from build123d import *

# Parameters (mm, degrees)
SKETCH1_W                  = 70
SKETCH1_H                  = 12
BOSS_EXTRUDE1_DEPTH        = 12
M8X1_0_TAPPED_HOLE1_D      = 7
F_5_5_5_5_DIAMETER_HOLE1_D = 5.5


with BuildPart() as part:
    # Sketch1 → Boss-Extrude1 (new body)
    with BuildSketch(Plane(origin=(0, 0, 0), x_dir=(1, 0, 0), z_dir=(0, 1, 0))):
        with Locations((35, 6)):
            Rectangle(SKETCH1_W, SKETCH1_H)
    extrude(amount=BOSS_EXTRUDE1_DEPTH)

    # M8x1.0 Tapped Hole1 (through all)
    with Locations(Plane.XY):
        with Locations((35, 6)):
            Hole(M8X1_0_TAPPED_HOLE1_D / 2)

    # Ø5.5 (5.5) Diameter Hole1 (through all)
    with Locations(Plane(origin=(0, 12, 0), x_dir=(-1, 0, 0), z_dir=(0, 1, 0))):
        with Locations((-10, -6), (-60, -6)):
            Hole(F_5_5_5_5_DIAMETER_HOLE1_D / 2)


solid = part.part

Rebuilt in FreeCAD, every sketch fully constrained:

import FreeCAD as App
import Part
import Sketcher


def add_polygon(sketch, points):
    """Adds a closed chain of lines whose ends are joined by coincident constraints."""
    first, n = sketch.GeometryCount, len(points)
    for a, b in zip(points, points[1:] + points[:1]):
        sketch.addGeometry(Part.LineSegment(App.Vector(*a, 0), App.Vector(*b, 0)), False)
    for i in range(n):
        sketch.addConstraint(Sketcher.Constraint("Coincident", first + i, 2, first + (i + 1) % n, 1))

doc = App.newDocument("Part")
body = doc.addObject("PartDesign::Body", "Body")

sketch1 = body.newObject("Sketcher::SketchObject", "Sketch")
sketch1.AttachmentSupport = (doc.getObject("XZ_Plane"), [""])
sketch1.MapMode = "FlatFace"
add_polygon(sketch1, [(0, -12), (0, 0), (70, 0), (70, -12)])
sketch1.addConstraint([
    Sketcher.Constraint("Vertical", 0),
    Sketcher.Constraint("Horizontal", 1),
    Sketcher.Constraint("Vertical", 2),
    Sketcher.Constraint("Horizontal", 3),
    Sketcher.Constraint("Coincident", 0, 2, -1, 1),
    Sketcher.Constraint("DistanceX", 1, 1, 1, 2, 70.0),
    Sketcher.Constraint("DistanceY", 0, 1, 0, 2, 12.0),
])
pad1 = body.newObject("PartDesign::Pad", "Pad")
pad1.Profile = sketch1
pad1.Length = 12
pad1.Reversed = True

sketch2 = body.newObject("Sketcher::SketchObject", "Sketch001")
sketch2.AttachmentSupport = (doc.getObject("XY_Plane"), [""])
sketch2.MapMode = "FlatFace"
sketch2.addGeometry(Part.Circle(App.Vector(35, 6, 0), App.Vector(0, 0, 1), 3.5), False)
sketch2.addConstraint([
    Sketcher.Constraint("Diameter", 0, 7.0),
    Sketcher.Constraint("DistanceX", -1, 1, 0, 3, 35.0),
    Sketcher.Constraint("DistanceY", -1, 1, 0, 3, 6.0),
])
doc.recompute()
hole = body.newObject("PartDesign::Hole", "Hole")
hole.Profile = sketch2
hole.ThreadType = "None"
hole.Diameter = 7
hole.DepthType = "ThroughAll"

sketch3 = body.newObject("Sketcher::SketchObject", "Sketch002")
sketch3.AttachmentSupport = (doc.getObject("XZ_Plane"), [""])
sketch3.MapMode = "FlatFace"
sketch3.AttachmentOffset = App.Placement(App.Vector(0, 0, -12), App.Rotation())
sketch3.addGeometry([
    Part.Circle(App.Vector(10, -6, 0), App.Vector(0, 0, 1), 2.75),
    Part.Circle(App.Vector(60, -6, 0), App.Vector(0, 0, 1), 2.75),
], False)
sketch3.addConstraint([
    Sketcher.Constraint("Equal", 0, 1),
    Sketcher.Constraint("Horizontal", 0, 3, 1, 3),
    Sketcher.Constraint("Diameter", 0, 5.5),
    Sketcher.Constraint("DistanceX", -1, 1, 0, 3, 10.0),
    Sketcher.Constraint("DistanceY", 0, 3, -1, 1, 6.0),
    Sketcher.Constraint("DistanceX", -1, 1, 1, 3, 60.0),
])
doc.recompute()
hole2 = body.newObject("PartDesign::Hole", "Hole001")
hole2.Profile = sketch3
hole2.ThreadType = "None"
hole2.Diameter = 5.5
hole2.DepthType = "ThroughAll"
hole2.Reversed = True

doc.recompute()
